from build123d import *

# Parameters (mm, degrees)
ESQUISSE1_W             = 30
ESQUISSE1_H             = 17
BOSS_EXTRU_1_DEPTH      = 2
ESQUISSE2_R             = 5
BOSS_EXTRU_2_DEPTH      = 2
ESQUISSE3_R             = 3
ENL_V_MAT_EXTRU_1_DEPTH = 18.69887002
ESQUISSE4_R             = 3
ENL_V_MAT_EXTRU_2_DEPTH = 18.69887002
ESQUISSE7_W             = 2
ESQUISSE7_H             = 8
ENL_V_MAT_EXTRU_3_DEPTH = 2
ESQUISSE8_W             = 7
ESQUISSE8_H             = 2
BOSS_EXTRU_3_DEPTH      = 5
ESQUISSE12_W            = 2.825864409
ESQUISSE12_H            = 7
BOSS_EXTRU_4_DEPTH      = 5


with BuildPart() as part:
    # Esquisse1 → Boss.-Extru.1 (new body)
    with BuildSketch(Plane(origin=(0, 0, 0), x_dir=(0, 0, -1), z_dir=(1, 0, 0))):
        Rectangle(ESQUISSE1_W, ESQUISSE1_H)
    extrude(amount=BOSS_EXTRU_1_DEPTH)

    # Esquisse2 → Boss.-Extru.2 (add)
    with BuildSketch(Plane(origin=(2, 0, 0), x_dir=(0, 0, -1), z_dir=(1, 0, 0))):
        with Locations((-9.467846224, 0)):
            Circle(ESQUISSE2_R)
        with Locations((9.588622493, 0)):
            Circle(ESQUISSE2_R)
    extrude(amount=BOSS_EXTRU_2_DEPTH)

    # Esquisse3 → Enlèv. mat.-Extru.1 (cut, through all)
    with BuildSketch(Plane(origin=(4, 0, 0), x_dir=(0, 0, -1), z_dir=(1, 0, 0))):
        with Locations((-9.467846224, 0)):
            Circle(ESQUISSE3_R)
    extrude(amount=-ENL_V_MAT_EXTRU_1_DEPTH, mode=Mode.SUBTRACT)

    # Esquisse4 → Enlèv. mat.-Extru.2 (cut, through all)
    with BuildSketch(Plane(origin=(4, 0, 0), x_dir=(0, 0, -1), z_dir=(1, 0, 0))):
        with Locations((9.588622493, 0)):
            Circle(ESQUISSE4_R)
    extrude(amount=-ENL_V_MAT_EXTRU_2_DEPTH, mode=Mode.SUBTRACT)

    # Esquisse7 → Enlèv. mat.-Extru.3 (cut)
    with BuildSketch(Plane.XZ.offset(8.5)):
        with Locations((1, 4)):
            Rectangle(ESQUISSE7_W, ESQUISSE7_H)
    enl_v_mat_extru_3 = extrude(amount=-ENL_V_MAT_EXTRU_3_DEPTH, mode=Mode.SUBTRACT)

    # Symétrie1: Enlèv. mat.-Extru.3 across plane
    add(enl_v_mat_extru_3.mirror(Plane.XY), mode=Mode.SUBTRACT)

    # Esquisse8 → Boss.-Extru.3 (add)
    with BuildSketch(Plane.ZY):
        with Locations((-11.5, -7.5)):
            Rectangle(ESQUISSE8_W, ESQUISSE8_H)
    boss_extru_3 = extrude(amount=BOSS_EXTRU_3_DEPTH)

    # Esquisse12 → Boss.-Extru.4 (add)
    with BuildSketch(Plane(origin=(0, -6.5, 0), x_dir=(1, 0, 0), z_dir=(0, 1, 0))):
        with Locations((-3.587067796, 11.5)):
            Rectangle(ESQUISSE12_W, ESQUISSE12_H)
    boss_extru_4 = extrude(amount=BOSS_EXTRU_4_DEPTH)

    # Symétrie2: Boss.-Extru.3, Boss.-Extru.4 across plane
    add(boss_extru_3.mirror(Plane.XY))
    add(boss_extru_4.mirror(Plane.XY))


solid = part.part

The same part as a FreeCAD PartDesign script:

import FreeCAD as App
import Part
import Sketcher

V = App.Vector
Q = App.Units.Quantity


def add_polygon(sketch, points):
    """Adds a closed chain of lines whose ends are joined by coincident constraints."""
    first, n = sketch.GeometryCount, len(points)
    for a, b in zip(points, points[1:] + points[:1]):
        sketch.addGeometry(Part.LineSegment(App.Vector(*a, 0), App.Vector(*b, 0)), False)
    for i in range(n):
        sketch.addConstraint(Sketcher.Constraint("Coincident", first + i, 2, first + (i + 1) % n, 1))

doc = App.newDocument("Part")
body = doc.addObject("PartDesign::Body", "Body")

# Sketch on YZ plane
sketch1 = body.newObject("Sketcher::SketchObject", "Sketch")
sketch1.AttachmentSupport = (doc.getObject("YZ_Plane"), [""])
sketch1.MapMode = "FlatFace"
add_polygon(sketch1, [(8, 15), (-8, 15), (-8, -15), (8, -15)])  # lines 0-3
sketch1.addConstraint([
    Sketcher.Constraint("Horizontal", 0),
    Sketcher.Constraint("Vertical", 1),
    Sketcher.Constraint("Horizontal", 2),
    Sketcher.Constraint("Vertical", 3),
    Sketcher.Constraint("Symmetric", 0, 2, 2, 2, -1, 1),
    Sketcher.Constraint("DistanceX", 0, 2, 0, 1, Q("17 mm")),
    Sketcher.Constraint("DistanceY", 1, 2, 1, 1, Q("30 mm")),
])
pad1 = body.newObject("PartDesign::Pad", "Pad")
pad1.Profile = sketch1
pad1.Length = 2

# Sketch on YZ plane
sketch2 = body.newObject("Sketcher::SketchObject", "Sketch001")
sketch2.AttachmentSupport = (doc.getObject("YZ_Plane"), [""])
sketch2.MapMode = "FlatFace"
sketch2.AttachmentOffset = App.Placement(V(0, 0, 2), App.Rotation())
sketch2.addGeometry([
    Part.Circle(V(0, 9, 0), V(0, 0, 1), 5),
    Part.Circle(V(0, -10, 0), V(0, 0, 1), 5),
], False)
sketch2.addConstraint([
    Sketcher.Constraint("Equal", 0, 1),
    Sketcher.Constraint("PointOnObject", 0, 3, -2),
    Sketcher.Constraint("PointOnObject", 1, 3, -2),
    Sketcher.Constraint("Diameter", 0, Q("10 mm")),
    Sketcher.Constraint("DistanceY", 1, 3, 0, 3, Q("19.056469 mm")),
    Sketcher.Constraint("DistanceY", -1, 1, 0, 3, Q("9.467846 mm")),
])
pad2 = body.newObject("PartDesign::Pad", "Pad001")
pad2.Profile = sketch2
pad2.Length = 2

# Sketch on YZ plane
sketch3 = body.newObject("Sketcher::SketchObject", "Sketch002")
sketch3.AttachmentSupport = (doc.getObject("YZ_Plane"), [""])
sketch3.MapMode = "FlatFace"
sketch3.AttachmentOffset = App.Placement(V(0, 0, 4), App.Rotation())
sketch3.addGeometry(Part.Circle(V(0, 9.5, 0), V(0, 0, 1), 3), False)
sketch3.addConstraint([
    Sketcher.Constraint("PointOnObject", 0, 3, -2),
    Sketcher.Constraint("Diameter", 0, Q("6 mm")),
    Sketcher.Constraint("DistanceY", -1, 1, 0, 3, Q("9.467846 mm")),
])
pocket1 = body.newObject("PartDesign::Pocket", "Pocket")
pocket1.Profile = sketch3
pocket1.Type = "ThroughAll"

# Sketch on YZ plane
sketch4 = body.newObject("Sketcher::SketchObject", "Sketch003")
sketch4.AttachmentSupport = (doc.getObject("YZ_Plane"), [""])
sketch4.MapMode = "FlatFace"
sketch4.AttachmentOffset = App.Placement(V(0, 0, 4), App.Rotation())
sketch4.addGeometry(Part.Circle(V(0, -9.6, 0), V(0, 0, 1), 3), False)
sketch4.addConstraint([
    Sketcher.Constraint("PointOnObject", 0, 3, -2),
    Sketcher.Constraint("Diameter", 0, Q("6 mm")),
    Sketcher.Constraint("DistanceY", 0, 3, -1, 1, Q("9.588622 mm")),
])
pocket2 = body.newObject("PartDesign::Pocket", "Pocket001")
pocket2.Profile = sketch4
pocket2.Type = "ThroughAll"

# Sketch on XZ plane
sketch5 = body.newObject("Sketcher::SketchObject", "Sketch004")
sketch5.AttachmentSupport = (doc.getObject("XZ_Plane"), [""])
sketch5.MapMode = "FlatFace"
sketch5.AttachmentOffset = App.Placement(V(0, 0, 8.5), App.Rotation())
add_polygon(sketch5, [(0, 8), (0, 0), (2, 0), (2, 8)])  # lines 0-3
sketch5.addConstraint([
    Sketcher.Constraint("Vertical", 0),
    Sketcher.Constraint("Horizontal", 1),
    Sketcher.Constraint("Vertical", 2),
    Sketcher.Constraint("Horizontal", 3),
    Sketcher.Constraint("Coincident", 0, 2, -1, 1),
    Sketcher.Constraint("DistanceX", 1, 1, 1, 2, Q("2 mm")),
    Sketcher.Constraint("DistanceY", 0, 2, 0, 1, Q("8 mm")),
])
pocket3 = body.newObject("PartDesign::Pocket", "Pocket002")
pocket3.Profile = sketch5
pocket3.Length = 2
doc.recompute()

mirrored = body.newObject("PartDesign::Mirrored", "Mirrored")
mirrored.Originals = [pocket3]
mirrored.MirrorPlane = (doc.getObject("XY_Plane"), [""])
body.Tip = mirrored

# Sketch on YZ plane
sketch6 = body.newObject("Sketcher::SketchObject", "Sketch005")
sketch6.AttachmentSupport = (doc.getObject("YZ_Plane"), [""])
sketch6.MapMode = "FlatFace"
add_polygon(sketch6, [(-6.5, -15), (-8.5, -15), (-8.5, -8), (-6.5, -8)])  # lines 0-3
sketch6.addConstraint([
    Sketcher.Constraint("Horizontal", 0),
    Sketcher.Constraint("Vertical", 1),
    Sketcher.Constraint("Horizontal", 2),
    Sketcher.Constraint("Vertical", 3),
    Sketcher.Constraint("DistanceX", 0, 2, 0, 1, Q("2 mm")),
    Sketcher.Constraint("DistanceY", 1, 1, 1, 2, Q("7 mm")),
    Sketcher.Constraint("DistanceY", 0, 2, -1, 1, Q("15 mm")),
    Sketcher.Constraint("DistanceX", 0, 2, -1, 1, Q("8.5 mm")),
])
pad3 = body.newObject("PartDesign::Pad", "Pad002")
pad3.Profile = sketch6
pad3.Length = 5
pad3.Reversed = True

# Sketch on XZ plane
sketch7 = body.newObject("Sketcher::SketchObject", "Sketch006")
sketch7.AttachmentSupport = (doc.getObject("XZ_Plane"), [""])
sketch7.MapMode = "FlatFace"
sketch7.AttachmentOffset = App.Placement(V(0, 0, 6.5), App.Rotation())
add_polygon(sketch7, [(-5, -15), (-5, -8), (-2.2, -8), (-2.2, -15)])  # lines 0-3
sketch7.addConstraint([
    Sketcher.Constraint("Vertical", 0),
    Sketcher.Constraint("Horizontal", 1),
    Sketcher.Constraint("Vertical", 2),
    Sketcher.Constraint("Horizontal", 3),
    Sketcher.Constraint("DistanceY", 0, 1, 0, 2, Q("7 mm")),
    Sketcher.Constraint("DistanceX", 0, 2, -1, 1, Q("5 mm")),
    Sketcher.Constraint("DistanceY", 0, 2, -1, 1, Q("8 mm")),
    Sketcher.Constraint("DistanceX", 1, 1, 1, 2, Q("2.825864 mm")),
])
pad4 = body.newObject("PartDesign::Pad", "Pad003")
pad4.Profile = sketch7
pad4.Length = 5
pad4.Reversed = True
doc.recompute()

mirrored2 = body.newObject("PartDesign::Mirrored", "Mirrored001")
mirrored2.Originals = [pad3, pad4]
mirrored2.MirrorPlane = (doc.getObject("XY_Plane"), [""])
body.Tip = mirrored2

doc.recompute()
